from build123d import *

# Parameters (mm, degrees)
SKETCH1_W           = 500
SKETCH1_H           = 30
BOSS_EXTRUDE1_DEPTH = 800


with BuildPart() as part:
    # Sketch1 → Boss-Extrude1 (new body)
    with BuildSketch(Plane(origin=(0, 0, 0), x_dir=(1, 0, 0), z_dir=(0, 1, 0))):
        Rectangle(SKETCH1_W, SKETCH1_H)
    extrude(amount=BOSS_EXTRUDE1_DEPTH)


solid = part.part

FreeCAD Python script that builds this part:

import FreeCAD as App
import Part
import Sketcher

V = App.Vector


def add_polygon(sketch, points):
    """Adds a closed chain of lines whose ends are joined by coincident constraints."""
    first, n = sketch.GeometryCount, len(points)
    for a, b in zip(points, points[1:] + points[:1]):
        sketch.addGeometry(Part.LineSegment(App.Vector(*a, 0), App.Vector(*b, 0)), False)
    for i in range(n):
        sketch.addConstraint(Sketcher.Constraint("Coincident", first + i, 2, first + (i + 1) % n, 1))

doc = App.newDocument("Part")
body = doc.addObject("PartDesign::Body", "Body")

# Sketch on XZ plane
sketch1 = body.newObject("Sketcher::SketchObject", "Sketch")
sketch1.AttachmentSupport = (doc.getObject("XZ_Plane"), [""])
sketch1.MapMode = "FlatFace"
add_polygon(sketch1, [(-250, -15), (-250, 15), (250, 15), (250, -15)])  # lines 0-3
sketch1.addConstraint([
    Sketcher.Constraint("Vertical", 0),
    Sketcher.Constraint("Horizontal", 1),
    Sketcher.Constraint("Vertical", 2),
    Sketcher.Constraint("Horizontal", 3),
    Sketcher.Constraint("Symmetric", 0, 2, 2, 2, -1, 1),
    Sketcher.Constraint("DistanceX", 1, 1, 1, 2, 500.0),
    Sketcher.Constraint("DistanceY", 0, 1, 0, 2, 30.0),
])
pad1 = body.newObject("PartDesign::Pad", "Pad")
pad1.Profile = sketch1
pad1.Length = 800
pad1.Reversed = True

doc.recompute()
